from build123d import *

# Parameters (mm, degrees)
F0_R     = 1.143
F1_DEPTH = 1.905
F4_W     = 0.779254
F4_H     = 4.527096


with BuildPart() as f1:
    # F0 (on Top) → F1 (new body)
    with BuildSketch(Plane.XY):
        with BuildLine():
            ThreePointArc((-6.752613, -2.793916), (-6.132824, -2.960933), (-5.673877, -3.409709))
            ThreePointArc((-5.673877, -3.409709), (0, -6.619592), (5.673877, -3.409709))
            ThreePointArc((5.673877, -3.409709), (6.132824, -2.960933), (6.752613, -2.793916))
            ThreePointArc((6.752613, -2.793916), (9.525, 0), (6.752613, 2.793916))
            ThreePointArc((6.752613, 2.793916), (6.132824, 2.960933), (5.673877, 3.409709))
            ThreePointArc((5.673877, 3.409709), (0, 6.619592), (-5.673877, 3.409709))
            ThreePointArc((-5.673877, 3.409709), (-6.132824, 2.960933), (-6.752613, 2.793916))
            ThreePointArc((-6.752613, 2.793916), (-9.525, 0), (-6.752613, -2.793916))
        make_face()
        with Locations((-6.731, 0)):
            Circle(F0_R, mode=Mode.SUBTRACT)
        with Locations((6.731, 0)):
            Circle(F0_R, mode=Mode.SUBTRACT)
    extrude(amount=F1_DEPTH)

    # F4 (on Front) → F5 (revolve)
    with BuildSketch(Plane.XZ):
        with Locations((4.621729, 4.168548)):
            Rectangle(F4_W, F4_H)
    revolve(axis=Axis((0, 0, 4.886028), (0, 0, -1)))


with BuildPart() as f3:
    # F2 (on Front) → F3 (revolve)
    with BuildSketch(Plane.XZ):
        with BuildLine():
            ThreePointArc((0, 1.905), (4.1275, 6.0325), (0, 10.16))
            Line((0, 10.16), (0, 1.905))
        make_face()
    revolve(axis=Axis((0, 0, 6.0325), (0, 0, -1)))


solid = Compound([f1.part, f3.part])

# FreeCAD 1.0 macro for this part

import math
import FreeCAD as App
import Part
import Sketcher
from FreeCAD import Vector
Q = App.Units.Quantity

doc = App.newDocument("Part")
params = doc.addObject("Spreadsheet::Sheet", "Params")
for row, (alias, value) in enumerate([
    ("sketch1_diameter", "0.09 in"),
    ("sketch1_radius", "0.05 in"),
    ("sketch1_radius2", "0.11 in"),
    ("pad1_length", "0.075 in"),
    ("revolution_angle", "360 deg"),
    ("revolution2_angle", "360 deg"),
], start=1):
    params.set(f"A{row}", alias)
    params.set(f"B{row}", "=" + value)
    params.setAlias(f"B{row}", alias)

body = doc.addObject("PartDesign::Body", "Body")

# Sketch on XY plane
sketch1 = body.newObject("Sketcher::SketchObject", "Sketch")
sketch1.AttachmentSupport = (doc.getObject("XY_Plane"), [""])
sketch1.MapMode = "FlatFace"
sketch1.addGeometry([
    Part.ArcOfCircle(Part.Circle(Vector(-6.8, -4.1, 0), Vector(0, 0, 1), 1.3), math.radians(31), math.radians(90)),  # 0
    Part.ArcOfCircle(Part.Circle(Vector(0, 0, 0), Vector(0, 0, 1), 6.6), math.radians(-149), math.radians(-31)),  # 1
    Part.ArcOfCircle(Part.Circle(Vector(6.8, -4.1, 0), Vector(0, 0, 1), 1.3), math.radians(90), math.radians(149)),  # 2
    Part.ArcOfCircle(Part.Circle(Vector(6.7, 0, 0), Vector(0, 0, 1), 2.8), math.radians(-90), math.radians(90)),  # 3
    Part.ArcOfCircle(Part.Circle(Vector(6.8, 4.1, 0), Vector(0, 0, 1), 1.3), math.radians(-149), math.radians(-90)),  # 4
    Part.ArcOfCircle(Part.Circle(Vector(0, 0, 0), Vector(0, 0, 1), 6.6), math.radians(31), math.radians(149)),  # 5
    Part.ArcOfCircle(Part.Circle(Vector(-6.8, 4.1, 0), Vector(0, 0, 1), 1.3), math.radians(-90), math.radians(-31)),  # 6
    Part.ArcOfCircle(Part.Circle(Vector(-6.7, 0, 0), Vector(0, 0, 1), 2.8), math.radians(90), math.radians(270)),  # 7
    Part.Circle(Vector(-6.7, 0, 0), Vector(0, 0, 1), 1.1),  # 8
    Part.Circle(Vector(6.7, 0, 0), Vector(0, 0, 1), 1.1),  # 9
], False)
sketch1.addConstraint([
    Sketcher.Constraint("Tangent", 0, 1, 1, 1),
    Sketcher.Constraint("Tangent", 1, 2, 2, 2),
    Sketcher.Constraint("Tangent", 2, 1, 3, 1),
    Sketcher.Constraint("Tangent", 3, 2, 4, 2),
    Sketcher.Constraint("Tangent", 4, 1, 5, 1),
    Sketcher.Constraint("Tangent", 5, 2, 6, 2),
    Sketcher.Constraint("Tangent", 6, 1, 7, 1),
    Sketcher.Constraint("Tangent", 7, 2, 0, 2),
    Sketcher.Constraint("Coincident", 1, 3, -1, 1),
    Sketcher.Constraint("Coincident", 5, 3, -1, 1),
    Sketcher.Constraint("Coincident", 8, 3, 7, 3),
    Sketcher.Constraint("Coincident", 9, 3, 3, 3),
    Sketcher.Constraint("Equal", 0, 2),
    Sketcher.Constraint("Equal", 2, 4),
    Sketcher.Constraint("Equal", 1, 5),
    Sketcher.Constraint("Equal", 4, 6),
    Sketcher.Constraint("Equal", 3, 7),
    Sketcher.Constraint("Equal", 8, 9),
    Sketcher.Constraint("Symmetric", 3, 3, 7, 3, -1, 1),
    Sketcher.Constraint("PointOnObject", 3, 3, -1),
    Sketcher.Constraint("Diameter", 8, Q("0.09 in")),
    Sketcher.Constraint("Radius", 0, Q("0.05 in")),
    Sketcher.Constraint("Radius", 3, Q("0.11 in")),
    Sketcher.Constraint("DistanceX", 7, 3, 3, 3, Q("0.53 in")),
    Sketcher.Constraint("Radius", 1, 6.619592),
])
sketch1.setExpression("Constraints[20]", "Params.sketch1_diameter")
sketch1.setExpression("Constraints[21]", "Params.sketch1_radius")
sketch1.setExpression("Constraints[22]", "Params.sketch1_radius2")
pad1 = body.newObject("PartDesign::Pad", "Pad")
pad1.Profile = sketch1
pad1.setExpression("Length", "Params.pad1_length")

# Sketch on XZ plane
sketch2 = body.newObject("Sketcher::SketchObject", "Sketch001")
sketch2.AttachmentSupport = (doc.getObject("XZ_Plane"), [""])
sketch2.MapMode = "FlatFace"
sketch2.addGeometry([
    Part.LineSegment(Vector(4.2, 6.4, 0), Vector(4.2, 1.9, 0)),
    Part.LineSegment(Vector(4.2, 1.9, 0), Vector(5, 1.9, 0)),
    Part.LineSegment(Vector(5, 1.9, 0), Vector(5, 6.4, 0)),
    Part.LineSegment(Vector(5, 6.4, 0), Vector(4.2, 6.4, 0)),
], False)
sketch2.addConstraint([
    Sketcher.Constraint("Coincident", 0, 2, 1, 1),
    Sketcher.Constraint("Coincident", 1, 2, 2, 1),
    Sketcher.Constraint("Coincident", 2, 2, 3, 1),
    Sketcher.Constraint("Coincident", 3, 2, 0, 1),
    Sketcher.Constraint("Vertical", 0),
    Sketcher.Constraint("Horizontal", 1),
    Sketcher.Constraint("Vertical", 2),
    Sketcher.Constraint("Horizontal", 3),
    Sketcher.Constraint("DistanceY", -1, 1, 0, 2, Q("0.075 in")),
    Sketcher.Constraint("DistanceX", 1, 1, 1, 2, 0.779254),
    Sketcher.Constraint("DistanceY", 0, 2, 0, 1, 4.527096),
    Sketcher.Constraint("DistanceX", -1, 1, 0, 2, 4.232102),
])
revolution = body.newObject("PartDesign::Revolution", "Revolution")
revolution.Profile = sketch2
revolution.ReferenceAxis = (sketch2, ["V_Axis"])
revolution.setExpression("Angle", "Params.revolution_angle")
body2 = doc.addObject("PartDesign::Body", "Body001")

# Sketch on XZ plane
sketch3 = body2.newObject("Sketcher::SketchObject", "Sketch002")
sketch3.AttachmentSupport = (doc.getObject("XZ_Plane001"), [""])
sketch3.MapMode = "FlatFace"
sketch3.addGeometry([
    Part.ArcOfCircle(Part.Circle(Vector(0, 6, 0), Vector(0, 0, 1), 4.1), math.radians(-90), math.radians(90)),
    Part.LineSegment(Vector(0, 10.2, 0), Vector(0, 1.9, 0)),
], False)
sketch3.addConstraint([
    Sketcher.Constraint("Coincident", 0, 1, 1, 2),
    Sketcher.Constraint("Coincident", 1, 1, 0, 2),
    Sketcher.Constraint("Vertical", 1),
    Sketcher.Constraint("PointOnObject", 0, 3, -2),
    Sketcher.Constraint("PointOnObject", 0, 1, -2),
    Sketcher.Constraint("DistanceY", -1, 1, 1, 1, Q("0.4 in")),
    Sketcher.Constraint("Radius", 0, Q("0.1625 in")),
])
revolution2 = body2.newObject("PartDesign::Revolution", "Revolution001")
revolution2.Profile = sketch3
revolution2.ReferenceAxis = (sketch3, ["V_Axis"])
revolution2.setExpression("Angle", "Params.revolution2_angle")

doc.recompute()
